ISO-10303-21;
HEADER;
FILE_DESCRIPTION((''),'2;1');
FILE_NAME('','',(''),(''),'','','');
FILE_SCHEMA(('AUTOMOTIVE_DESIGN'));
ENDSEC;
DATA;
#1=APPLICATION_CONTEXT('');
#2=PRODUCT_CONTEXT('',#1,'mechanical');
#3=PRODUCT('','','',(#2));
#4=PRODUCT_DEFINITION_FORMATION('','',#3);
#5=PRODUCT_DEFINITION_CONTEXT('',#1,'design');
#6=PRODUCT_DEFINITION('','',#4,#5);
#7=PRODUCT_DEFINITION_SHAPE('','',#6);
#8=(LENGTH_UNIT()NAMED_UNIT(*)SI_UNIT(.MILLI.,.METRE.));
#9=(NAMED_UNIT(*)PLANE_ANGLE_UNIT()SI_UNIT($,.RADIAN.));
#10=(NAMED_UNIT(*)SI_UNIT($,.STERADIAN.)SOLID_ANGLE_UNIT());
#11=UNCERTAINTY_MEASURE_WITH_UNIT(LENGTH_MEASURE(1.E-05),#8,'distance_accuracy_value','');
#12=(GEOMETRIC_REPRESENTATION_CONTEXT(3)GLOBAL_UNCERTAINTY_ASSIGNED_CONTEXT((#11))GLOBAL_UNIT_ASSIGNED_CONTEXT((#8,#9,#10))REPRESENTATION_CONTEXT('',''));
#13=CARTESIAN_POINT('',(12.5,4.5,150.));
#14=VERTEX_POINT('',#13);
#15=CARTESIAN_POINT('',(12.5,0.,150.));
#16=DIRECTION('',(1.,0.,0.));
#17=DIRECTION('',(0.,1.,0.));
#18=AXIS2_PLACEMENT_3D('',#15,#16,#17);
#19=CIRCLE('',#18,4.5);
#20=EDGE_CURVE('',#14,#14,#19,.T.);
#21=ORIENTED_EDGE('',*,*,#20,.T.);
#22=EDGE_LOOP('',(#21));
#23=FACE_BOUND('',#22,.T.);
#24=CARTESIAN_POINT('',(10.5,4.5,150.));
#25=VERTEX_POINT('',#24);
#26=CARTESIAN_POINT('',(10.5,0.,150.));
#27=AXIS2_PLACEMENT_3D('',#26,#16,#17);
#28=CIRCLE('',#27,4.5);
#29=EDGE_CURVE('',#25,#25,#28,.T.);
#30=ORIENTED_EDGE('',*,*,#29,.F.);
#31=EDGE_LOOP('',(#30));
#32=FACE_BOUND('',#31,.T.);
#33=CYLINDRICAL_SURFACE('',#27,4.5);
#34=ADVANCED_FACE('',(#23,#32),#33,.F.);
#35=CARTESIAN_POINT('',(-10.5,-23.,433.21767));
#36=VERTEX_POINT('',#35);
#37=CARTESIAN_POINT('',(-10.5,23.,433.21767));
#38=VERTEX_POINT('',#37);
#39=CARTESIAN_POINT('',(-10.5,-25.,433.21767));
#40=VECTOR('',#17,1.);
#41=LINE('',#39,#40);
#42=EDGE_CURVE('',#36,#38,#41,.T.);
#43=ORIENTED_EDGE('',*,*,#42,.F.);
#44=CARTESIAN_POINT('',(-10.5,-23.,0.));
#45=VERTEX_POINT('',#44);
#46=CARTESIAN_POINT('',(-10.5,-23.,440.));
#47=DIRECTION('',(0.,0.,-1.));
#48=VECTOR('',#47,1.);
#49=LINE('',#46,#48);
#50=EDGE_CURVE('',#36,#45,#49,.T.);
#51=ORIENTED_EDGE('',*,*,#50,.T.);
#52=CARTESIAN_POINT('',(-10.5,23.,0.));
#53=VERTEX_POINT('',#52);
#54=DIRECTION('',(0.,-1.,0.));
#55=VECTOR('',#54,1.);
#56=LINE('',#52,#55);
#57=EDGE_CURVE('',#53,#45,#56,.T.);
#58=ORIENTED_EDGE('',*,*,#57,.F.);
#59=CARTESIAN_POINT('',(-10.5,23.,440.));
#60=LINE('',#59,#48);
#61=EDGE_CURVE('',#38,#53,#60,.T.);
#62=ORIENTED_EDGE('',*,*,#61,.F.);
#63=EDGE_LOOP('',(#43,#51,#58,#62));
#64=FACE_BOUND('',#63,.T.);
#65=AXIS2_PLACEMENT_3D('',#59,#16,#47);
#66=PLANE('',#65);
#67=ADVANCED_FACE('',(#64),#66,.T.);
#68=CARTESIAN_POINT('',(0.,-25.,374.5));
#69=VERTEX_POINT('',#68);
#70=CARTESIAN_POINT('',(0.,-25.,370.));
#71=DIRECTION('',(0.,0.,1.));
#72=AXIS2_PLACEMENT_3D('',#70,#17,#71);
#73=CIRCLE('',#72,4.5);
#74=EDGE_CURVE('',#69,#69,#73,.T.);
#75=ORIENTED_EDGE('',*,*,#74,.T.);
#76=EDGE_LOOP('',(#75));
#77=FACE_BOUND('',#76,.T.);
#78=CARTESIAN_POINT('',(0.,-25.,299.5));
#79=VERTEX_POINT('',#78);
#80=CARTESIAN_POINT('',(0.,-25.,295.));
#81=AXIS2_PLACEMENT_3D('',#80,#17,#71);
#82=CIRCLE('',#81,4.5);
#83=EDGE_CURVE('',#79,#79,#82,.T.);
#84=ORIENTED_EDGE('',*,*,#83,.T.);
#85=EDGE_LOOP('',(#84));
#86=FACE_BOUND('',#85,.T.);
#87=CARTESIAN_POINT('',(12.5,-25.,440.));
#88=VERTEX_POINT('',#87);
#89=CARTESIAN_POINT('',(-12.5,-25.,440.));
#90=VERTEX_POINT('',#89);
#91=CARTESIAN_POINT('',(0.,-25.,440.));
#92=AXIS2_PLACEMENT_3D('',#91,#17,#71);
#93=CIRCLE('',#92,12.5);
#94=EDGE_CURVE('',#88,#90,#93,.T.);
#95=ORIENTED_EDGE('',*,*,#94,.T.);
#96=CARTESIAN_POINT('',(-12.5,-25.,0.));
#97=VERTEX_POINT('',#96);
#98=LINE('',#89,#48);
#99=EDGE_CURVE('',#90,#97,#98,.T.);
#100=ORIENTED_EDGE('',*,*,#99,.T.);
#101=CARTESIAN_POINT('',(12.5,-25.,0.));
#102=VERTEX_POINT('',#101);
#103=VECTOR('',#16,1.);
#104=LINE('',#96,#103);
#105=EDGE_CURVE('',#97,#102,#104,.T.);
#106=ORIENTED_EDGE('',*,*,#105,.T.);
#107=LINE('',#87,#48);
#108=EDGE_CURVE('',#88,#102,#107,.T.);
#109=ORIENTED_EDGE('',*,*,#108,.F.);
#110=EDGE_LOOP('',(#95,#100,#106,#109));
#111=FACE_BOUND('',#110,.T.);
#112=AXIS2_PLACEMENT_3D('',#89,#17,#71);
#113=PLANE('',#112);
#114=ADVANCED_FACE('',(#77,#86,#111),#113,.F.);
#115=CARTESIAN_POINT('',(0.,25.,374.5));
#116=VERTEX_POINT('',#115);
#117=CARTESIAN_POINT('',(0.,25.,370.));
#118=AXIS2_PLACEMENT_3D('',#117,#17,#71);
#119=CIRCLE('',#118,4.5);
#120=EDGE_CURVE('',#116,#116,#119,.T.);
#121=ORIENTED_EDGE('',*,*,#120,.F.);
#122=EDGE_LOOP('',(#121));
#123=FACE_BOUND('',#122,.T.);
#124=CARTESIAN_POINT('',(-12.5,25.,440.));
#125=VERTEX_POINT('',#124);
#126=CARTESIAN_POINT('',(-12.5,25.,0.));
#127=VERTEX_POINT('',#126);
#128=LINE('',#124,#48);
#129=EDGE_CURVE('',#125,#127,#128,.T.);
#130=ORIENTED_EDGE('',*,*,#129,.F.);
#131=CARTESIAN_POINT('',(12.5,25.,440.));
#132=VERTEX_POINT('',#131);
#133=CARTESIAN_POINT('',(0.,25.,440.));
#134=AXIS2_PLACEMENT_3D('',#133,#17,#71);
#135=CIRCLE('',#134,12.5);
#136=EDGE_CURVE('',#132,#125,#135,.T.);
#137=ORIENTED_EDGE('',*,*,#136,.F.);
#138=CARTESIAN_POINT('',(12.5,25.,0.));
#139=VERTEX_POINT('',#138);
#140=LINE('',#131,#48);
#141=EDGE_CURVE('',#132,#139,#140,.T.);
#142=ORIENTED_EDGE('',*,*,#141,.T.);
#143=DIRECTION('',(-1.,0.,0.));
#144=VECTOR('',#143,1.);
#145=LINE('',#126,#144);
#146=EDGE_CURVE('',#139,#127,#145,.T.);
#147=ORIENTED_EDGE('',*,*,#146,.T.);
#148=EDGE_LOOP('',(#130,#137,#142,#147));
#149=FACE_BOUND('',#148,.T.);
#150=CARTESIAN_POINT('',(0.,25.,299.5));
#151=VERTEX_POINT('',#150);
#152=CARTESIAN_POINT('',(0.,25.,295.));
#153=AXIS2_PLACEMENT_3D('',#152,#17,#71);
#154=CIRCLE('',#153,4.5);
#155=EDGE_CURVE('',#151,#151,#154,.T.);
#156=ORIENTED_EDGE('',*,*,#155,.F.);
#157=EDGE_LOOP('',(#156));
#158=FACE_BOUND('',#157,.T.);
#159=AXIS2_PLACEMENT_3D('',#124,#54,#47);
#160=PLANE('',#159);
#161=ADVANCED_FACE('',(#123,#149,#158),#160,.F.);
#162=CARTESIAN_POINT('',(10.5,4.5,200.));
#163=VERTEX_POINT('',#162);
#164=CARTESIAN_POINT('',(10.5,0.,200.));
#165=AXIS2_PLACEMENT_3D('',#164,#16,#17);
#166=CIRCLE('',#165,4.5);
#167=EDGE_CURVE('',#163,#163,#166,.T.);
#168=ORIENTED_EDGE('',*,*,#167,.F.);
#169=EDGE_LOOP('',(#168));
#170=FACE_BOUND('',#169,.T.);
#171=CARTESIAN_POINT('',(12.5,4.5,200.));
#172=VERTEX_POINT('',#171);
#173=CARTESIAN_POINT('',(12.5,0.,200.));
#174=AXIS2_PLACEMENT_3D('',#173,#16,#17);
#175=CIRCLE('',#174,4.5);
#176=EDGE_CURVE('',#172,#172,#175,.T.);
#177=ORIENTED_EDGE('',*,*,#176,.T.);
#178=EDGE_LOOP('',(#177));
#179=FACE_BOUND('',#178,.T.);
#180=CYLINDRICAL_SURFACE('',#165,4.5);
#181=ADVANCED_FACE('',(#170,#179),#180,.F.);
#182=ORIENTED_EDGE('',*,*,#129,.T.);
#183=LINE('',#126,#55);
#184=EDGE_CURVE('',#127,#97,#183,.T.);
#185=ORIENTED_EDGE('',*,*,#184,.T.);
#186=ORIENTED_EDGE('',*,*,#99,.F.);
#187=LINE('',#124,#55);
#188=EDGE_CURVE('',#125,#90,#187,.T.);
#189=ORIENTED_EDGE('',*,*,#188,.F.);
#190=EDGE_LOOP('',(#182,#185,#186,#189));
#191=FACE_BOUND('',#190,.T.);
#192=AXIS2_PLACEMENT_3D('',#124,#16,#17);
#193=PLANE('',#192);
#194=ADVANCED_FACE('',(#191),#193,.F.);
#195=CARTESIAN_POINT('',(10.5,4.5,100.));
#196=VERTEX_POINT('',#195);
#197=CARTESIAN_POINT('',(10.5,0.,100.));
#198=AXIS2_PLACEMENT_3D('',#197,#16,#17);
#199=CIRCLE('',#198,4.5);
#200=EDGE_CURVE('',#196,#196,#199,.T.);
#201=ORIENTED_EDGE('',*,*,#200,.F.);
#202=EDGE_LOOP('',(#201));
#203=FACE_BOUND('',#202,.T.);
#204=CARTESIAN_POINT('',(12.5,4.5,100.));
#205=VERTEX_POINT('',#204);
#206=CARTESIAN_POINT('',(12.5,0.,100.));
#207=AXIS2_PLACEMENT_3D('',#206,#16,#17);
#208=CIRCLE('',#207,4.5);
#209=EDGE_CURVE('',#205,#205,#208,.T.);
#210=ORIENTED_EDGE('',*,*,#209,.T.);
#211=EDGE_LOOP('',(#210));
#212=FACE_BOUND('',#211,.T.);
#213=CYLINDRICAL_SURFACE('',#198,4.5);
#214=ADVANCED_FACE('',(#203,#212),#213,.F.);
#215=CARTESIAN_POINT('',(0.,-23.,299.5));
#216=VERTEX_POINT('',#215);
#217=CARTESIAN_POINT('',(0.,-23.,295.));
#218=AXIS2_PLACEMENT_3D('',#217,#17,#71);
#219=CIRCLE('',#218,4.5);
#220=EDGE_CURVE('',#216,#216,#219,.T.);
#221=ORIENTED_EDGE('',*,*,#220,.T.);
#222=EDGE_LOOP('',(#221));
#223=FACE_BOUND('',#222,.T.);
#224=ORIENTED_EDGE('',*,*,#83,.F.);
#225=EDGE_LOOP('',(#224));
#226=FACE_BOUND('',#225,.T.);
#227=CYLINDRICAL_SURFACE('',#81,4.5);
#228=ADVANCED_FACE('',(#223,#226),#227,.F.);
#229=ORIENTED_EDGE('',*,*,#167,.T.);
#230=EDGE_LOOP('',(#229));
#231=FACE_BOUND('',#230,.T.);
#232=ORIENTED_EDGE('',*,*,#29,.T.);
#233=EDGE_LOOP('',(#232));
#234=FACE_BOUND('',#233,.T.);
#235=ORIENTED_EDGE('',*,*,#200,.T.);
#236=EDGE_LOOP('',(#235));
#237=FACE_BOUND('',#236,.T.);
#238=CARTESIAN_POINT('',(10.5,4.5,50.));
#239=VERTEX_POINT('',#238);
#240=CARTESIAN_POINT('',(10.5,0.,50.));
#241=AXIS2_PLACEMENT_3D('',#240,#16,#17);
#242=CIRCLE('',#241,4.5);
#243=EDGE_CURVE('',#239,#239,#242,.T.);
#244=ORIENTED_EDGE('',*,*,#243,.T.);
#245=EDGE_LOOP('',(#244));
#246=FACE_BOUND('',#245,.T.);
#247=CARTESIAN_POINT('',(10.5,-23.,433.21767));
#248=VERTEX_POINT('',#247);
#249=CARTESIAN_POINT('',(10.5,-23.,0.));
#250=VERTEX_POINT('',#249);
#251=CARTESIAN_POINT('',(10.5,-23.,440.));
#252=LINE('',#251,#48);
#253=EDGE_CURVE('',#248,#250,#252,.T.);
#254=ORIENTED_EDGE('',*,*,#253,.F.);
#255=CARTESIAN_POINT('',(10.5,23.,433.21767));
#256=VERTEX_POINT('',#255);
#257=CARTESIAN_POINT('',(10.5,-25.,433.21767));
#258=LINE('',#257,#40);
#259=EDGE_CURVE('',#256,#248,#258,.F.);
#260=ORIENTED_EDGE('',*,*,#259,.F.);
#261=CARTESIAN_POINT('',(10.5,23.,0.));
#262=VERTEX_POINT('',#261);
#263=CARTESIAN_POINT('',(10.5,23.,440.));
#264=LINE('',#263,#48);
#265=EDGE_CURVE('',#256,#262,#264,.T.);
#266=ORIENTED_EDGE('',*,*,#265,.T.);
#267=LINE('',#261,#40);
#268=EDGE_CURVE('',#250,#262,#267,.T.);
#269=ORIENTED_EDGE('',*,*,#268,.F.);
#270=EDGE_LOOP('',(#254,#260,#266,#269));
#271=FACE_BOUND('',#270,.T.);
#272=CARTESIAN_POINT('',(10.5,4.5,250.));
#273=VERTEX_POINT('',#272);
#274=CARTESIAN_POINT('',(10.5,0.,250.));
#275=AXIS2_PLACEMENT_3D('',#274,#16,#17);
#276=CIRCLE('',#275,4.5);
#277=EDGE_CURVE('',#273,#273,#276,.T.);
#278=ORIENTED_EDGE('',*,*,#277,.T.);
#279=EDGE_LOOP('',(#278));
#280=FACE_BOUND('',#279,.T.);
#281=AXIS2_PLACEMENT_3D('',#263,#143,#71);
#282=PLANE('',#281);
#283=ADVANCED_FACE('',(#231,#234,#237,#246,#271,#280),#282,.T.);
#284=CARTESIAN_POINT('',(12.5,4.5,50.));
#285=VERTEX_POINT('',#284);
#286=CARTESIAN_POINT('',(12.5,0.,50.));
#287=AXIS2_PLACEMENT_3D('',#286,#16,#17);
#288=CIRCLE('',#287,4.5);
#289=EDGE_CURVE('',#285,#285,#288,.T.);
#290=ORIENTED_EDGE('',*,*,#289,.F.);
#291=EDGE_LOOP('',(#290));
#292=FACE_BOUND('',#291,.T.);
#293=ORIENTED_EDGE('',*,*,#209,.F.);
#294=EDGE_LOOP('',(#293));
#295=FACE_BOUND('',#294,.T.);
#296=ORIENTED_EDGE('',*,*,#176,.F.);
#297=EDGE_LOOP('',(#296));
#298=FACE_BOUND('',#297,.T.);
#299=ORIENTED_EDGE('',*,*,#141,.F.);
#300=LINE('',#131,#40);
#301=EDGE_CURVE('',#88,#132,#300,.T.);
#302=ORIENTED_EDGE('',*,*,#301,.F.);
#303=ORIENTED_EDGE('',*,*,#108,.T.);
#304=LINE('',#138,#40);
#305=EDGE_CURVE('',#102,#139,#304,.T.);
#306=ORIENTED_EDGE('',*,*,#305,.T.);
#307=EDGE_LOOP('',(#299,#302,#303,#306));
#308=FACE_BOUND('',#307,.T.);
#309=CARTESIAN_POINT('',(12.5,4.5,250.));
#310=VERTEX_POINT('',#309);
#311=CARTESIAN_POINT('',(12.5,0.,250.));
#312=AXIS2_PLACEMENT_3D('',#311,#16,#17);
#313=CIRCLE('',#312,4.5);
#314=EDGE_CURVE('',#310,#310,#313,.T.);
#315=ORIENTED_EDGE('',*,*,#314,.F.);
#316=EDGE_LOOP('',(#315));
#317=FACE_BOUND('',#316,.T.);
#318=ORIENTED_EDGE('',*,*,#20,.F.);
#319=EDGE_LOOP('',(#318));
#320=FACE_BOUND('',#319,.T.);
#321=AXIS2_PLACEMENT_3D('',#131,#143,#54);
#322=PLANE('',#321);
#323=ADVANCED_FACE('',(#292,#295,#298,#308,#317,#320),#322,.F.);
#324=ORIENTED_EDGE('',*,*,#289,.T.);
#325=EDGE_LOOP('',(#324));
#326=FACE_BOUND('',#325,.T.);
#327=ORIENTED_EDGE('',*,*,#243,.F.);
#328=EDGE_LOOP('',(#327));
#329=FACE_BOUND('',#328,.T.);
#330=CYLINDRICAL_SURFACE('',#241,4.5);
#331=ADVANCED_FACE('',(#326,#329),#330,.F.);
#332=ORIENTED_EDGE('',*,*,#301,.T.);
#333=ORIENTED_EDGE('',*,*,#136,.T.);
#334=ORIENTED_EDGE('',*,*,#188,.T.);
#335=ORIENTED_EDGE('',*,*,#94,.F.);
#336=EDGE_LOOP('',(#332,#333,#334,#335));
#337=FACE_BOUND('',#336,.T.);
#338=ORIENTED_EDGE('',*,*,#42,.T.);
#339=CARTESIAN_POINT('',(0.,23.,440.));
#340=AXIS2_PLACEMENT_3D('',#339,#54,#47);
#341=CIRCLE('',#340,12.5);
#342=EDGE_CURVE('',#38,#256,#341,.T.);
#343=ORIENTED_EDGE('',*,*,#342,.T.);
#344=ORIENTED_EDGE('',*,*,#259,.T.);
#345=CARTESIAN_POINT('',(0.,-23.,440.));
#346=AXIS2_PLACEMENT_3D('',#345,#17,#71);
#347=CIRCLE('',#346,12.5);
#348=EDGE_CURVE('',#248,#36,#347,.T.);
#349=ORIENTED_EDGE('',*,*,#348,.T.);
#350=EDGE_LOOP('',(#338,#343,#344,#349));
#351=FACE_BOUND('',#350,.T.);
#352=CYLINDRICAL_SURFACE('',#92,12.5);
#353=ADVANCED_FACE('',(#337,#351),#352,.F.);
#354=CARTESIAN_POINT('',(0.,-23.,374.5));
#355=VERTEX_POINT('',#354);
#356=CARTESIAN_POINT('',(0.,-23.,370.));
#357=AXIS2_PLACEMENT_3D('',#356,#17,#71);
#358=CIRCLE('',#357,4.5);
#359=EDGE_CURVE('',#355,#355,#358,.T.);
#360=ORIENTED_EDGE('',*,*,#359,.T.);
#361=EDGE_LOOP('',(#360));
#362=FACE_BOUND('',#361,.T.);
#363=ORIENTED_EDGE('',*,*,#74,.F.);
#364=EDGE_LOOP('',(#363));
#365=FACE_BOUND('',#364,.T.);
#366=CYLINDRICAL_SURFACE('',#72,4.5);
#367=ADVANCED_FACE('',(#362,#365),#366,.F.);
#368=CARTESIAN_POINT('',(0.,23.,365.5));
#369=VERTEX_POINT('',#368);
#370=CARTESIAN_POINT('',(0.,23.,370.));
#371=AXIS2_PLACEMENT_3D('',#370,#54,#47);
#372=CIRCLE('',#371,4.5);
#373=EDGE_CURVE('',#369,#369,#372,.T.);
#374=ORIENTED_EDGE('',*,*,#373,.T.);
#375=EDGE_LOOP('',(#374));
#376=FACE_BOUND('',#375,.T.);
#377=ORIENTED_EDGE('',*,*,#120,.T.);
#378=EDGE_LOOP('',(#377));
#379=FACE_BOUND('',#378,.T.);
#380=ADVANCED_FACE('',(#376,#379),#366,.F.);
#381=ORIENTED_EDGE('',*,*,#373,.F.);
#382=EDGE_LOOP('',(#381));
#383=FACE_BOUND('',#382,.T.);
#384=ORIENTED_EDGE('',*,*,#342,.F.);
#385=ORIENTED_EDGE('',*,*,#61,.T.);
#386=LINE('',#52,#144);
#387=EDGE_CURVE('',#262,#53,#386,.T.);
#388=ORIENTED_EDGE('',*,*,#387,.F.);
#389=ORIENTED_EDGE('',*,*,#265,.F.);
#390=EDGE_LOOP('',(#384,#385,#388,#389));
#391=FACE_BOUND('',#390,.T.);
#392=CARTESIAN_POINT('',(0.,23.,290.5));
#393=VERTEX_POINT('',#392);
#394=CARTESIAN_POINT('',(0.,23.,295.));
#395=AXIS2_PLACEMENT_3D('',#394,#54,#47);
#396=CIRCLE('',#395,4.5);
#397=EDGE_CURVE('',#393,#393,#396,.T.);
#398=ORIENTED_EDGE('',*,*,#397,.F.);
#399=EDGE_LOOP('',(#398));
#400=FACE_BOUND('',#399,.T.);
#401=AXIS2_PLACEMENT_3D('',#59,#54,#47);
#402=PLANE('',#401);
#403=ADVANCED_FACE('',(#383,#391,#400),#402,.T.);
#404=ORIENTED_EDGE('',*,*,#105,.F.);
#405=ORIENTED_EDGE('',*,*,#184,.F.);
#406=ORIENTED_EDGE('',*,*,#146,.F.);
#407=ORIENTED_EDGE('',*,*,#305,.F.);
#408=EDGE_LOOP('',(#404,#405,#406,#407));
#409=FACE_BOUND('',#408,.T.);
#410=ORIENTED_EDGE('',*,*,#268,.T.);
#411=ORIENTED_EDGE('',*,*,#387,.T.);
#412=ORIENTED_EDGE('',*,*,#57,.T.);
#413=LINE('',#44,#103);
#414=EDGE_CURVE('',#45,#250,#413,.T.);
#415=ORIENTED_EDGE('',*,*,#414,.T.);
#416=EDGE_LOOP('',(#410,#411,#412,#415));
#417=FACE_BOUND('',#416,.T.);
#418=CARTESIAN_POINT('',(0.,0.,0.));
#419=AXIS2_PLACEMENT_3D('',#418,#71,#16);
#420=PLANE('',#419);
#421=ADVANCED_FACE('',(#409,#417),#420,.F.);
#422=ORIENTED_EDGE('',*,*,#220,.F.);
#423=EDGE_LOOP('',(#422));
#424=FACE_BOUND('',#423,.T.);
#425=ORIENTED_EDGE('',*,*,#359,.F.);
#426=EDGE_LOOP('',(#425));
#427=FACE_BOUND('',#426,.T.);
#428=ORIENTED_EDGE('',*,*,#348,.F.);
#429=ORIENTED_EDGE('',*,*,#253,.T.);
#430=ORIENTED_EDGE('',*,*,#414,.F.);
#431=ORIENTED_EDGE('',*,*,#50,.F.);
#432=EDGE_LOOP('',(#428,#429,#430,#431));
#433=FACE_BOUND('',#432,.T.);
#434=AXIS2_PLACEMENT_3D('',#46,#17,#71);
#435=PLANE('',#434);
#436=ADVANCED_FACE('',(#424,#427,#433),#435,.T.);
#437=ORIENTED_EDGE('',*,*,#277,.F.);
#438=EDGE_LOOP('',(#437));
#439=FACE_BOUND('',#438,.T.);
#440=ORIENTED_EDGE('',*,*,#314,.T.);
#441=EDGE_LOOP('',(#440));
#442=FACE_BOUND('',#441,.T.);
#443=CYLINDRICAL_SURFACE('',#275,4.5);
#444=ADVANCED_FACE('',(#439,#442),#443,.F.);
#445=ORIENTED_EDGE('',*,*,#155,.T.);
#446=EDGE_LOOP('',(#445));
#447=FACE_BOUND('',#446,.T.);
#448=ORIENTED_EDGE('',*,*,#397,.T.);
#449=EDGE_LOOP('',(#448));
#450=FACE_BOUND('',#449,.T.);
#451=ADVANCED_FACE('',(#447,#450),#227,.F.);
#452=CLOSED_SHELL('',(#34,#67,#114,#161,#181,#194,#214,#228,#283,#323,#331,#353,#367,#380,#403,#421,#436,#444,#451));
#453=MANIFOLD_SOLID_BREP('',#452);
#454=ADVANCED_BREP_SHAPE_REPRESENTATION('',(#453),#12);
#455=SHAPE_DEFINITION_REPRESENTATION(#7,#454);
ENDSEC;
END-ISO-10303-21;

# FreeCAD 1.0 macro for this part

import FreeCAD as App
import Part
import Sketcher
Q = App.Units.Quantity


def add_polygon(sketch, points):
    """Adds a closed chain of lines whose ends are joined by coincident constraints."""
    first, n = sketch.GeometryCount, len(points)
    for a, b in zip(points, points[1:] + points[:1]):
        sketch.addGeometry(Part.LineSegment(App.Vector(*a, 0), App.Vector(*b, 0)), False)
    for i in range(n):
        sketch.addConstraint(Sketcher.Constraint("Coincident", first + i, 2, first + (i + 1) % n, 1))

doc = App.newDocument("Part")
body = doc.addObject("PartDesign::Body", "Body")

# Sketch on XY plane
sketch1 = body.newObject("Sketcher::SketchObject", "Sketch")
sketch1.AttachmentSupport = (doc.getObject("XY_Plane"), [""])
sketch1.MapMode = "FlatFace"
add_polygon(sketch1, [(-12, 25), (-12, -25), (12, -25), (12, 25)])  # lines 0-3
add_polygon(sketch1, [(10, -23), (-10, -23), (-10, 23), (10, 23)])  # lines 4-7
sketch1.addConstraint([
    Sketcher.Constraint("Vertical", 0),
    Sketcher.Constraint("Horizontal", 1),
    Sketcher.Constraint("Vertical", 2),
    Sketcher.Constraint("Horizontal", 3),
    Sketcher.Constraint("Horizontal", 4),
    Sketcher.Constraint("Vertical", 5),
    Sketcher.Constraint("Horizontal", 6),
    Sketcher.Constraint("Vertical", 7),
    Sketcher.Constraint("Symmetric", 0, 2, 2, 2, -1, 1),
    Sketcher.Constraint("Symmetric", 4, 2, 6, 2, -1, 1),
    Sketcher.Constraint("DistanceX", 1, 1, 1, 2, Q("25 mm")),
    Sketcher.Constraint("DistanceX", 4, 2, 4, 1, Q("21 mm")),
    Sketcher.Constraint("DistanceY", 0, 2, 0, 1, Q("50 mm")),
    Sketcher.Constraint("DistanceY", 5, 1, 5, 2, Q("46 mm")),
])
pad1 = body.newObject("PartDesign::Pad", "Pad")
pad1.Profile = sketch1
pad1.Length = 440

# Sketch on XZ plane
sketch2 = body.newObject("Sketcher::SketchObject", "Sketch001")
sketch2.AttachmentSupport = (doc.getObject("XZ_Plane"), [""])
sketch2.MapMode = "FlatFace"
sketch2.AttachmentOffset = App.Placement(App.Vector(0, 0, -25), App.Rotation())
sketch2.addGeometry([
    Part.Circle(App.Vector(0, 440, 0), App.Vector(0, 0, 1), 12.5),
    Part.Circle(App.Vector(0, 370, 0), App.Vector(0, 0, 1), 4.5),
    Part.Circle(App.Vector(0, 295, 0), App.Vector(0, 0, 1), 4.5),
], False)
sketch2.addConstraint([
    Sketcher.Constraint("Equal", 1, 2),
    Sketcher.Constraint("PointOnObject", 0, 3, -2),
    Sketcher.Constraint("PointOnObject", 1, 3, -2),
    Sketcher.Constraint("PointOnObject", 2, 3, -2),
    Sketcher.Constraint("Diameter", 0, Q("25 mm")),
    Sketcher.Constraint("Diameter", 1, Q("9 mm")),
    Sketcher.Constraint("DistanceY", -1, 1, 0, 3, Q("440 mm")),
    Sketcher.Constraint("DistanceY", -1, 1, 1, 3, Q("370 mm")),
    Sketcher.Constraint("DistanceY", -1, 1, 2, 3, Q("295 mm")),
])
pocket1 = body.newObject("PartDesign::Pocket", "Pocket")
pocket1.Profile = sketch2
pocket1.Length = 50
pocket1.Reversed = True

# Sketch on YZ plane
sketch3 = body.newObject("Sketcher::SketchObject", "Sketch002")
sketch3.AttachmentSupport = (doc.getObject("YZ_Plane"), [""])
sketch3.MapMode = "FlatFace"
sketch3.AttachmentOffset = App.Placement(App.Vector(0, 0, 12.5), App.Rotation())
sketch3.addGeometry([
    Part.Circle(App.Vector(0, 50, 0), App.Vector(0, 0, 1), 4.5),  # 0
    Part.Circle(App.Vector(0, 100, 0), App.Vector(0, 0, 1), 4.5),  # 1
    Part.Circle(App.Vector(0, 150, 0), App.Vector(0, 0, 1), 4.5),  # 2
    Part.Circle(App.Vector(0, 200, 0), App.Vector(0, 0, 1), 4.5),  # 3
    Part.Circle(App.Vector(0, 250, 0), App.Vector(0, 0, 1), 4.5),  # 4
], False)
sketch3.addConstraint([
    Sketcher.Constraint("Equal", 0, 1),
    Sketcher.Constraint("Equal", 1, 2),
    Sketcher.Constraint("Equal", 2, 3),
    Sketcher.Constraint("Equal", 3, 4),
    Sketcher.Constraint("PointOnObject", 0, 3, -2),
    Sketcher.Constraint("PointOnObject", 1, 3, -2),
    Sketcher.Constraint("PointOnObject", 2, 3, -2),
    Sketcher.Constraint("PointOnObject", 3, 3, -2),
    Sketcher.Constraint("PointOnObject", 4, 3, -2),
    Sketcher.Constraint("Diameter", 0, Q("9 mm")),
    Sketcher.Constraint("DistanceY", -1, 1, 0, 3, Q("50 mm")),
    Sketcher.Constraint("DistanceY", -1, 1, 1, 3, Q("100 mm")),
    Sketcher.Constraint("DistanceY", -1, 1, 2, 3, Q("150 mm")),
    Sketcher.Constraint("DistanceY", -1, 1, 3, 3, Q("200 mm")),
    Sketcher.Constraint("DistanceY", -1, 1, 4, 3, Q("250 mm")),
])
pocket2 = body.newObject("PartDesign::Pocket", "Pocket001")
pocket2.Profile = sketch3
pocket2.Length = 2

doc.recompute()
